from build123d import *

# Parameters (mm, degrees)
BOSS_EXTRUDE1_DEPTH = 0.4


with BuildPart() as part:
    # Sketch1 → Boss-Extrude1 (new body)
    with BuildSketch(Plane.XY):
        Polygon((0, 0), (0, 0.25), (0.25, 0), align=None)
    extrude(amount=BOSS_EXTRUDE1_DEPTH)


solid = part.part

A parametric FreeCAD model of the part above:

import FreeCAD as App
import Part
import Sketcher

V = App.Vector
Q = App.Units.Quantity

doc = App.newDocument("Part")
body = doc.addObject("PartDesign::Body", "Body")

sketch1 = body.newObject("Sketcher::SketchObject", "Sketch")
sketch1.AttachmentSupport = (doc.getObject("XY_Plane"), [""])
sketch1.MapMode = "FlatFace"
sketch1.addGeometry(Part.LineSegment(V(0, 0.25, 0), V(0, 0, 0)), False)
sketch1.addGeometry(Part.LineSegment(V(0, 0, 0), V(0.25, 0, 0)), False)
sketch1.addGeometry(Part.LineSegment(V(0.25, 0, 0), V(0, 0.25, 0)), False)
sketch1.addConstraint(Sketcher.Constraint("Coincident", 0, 2, 1, 1))
sketch1.addConstraint(Sketcher.Constraint("Coincident", 1, 2, 2, 1))
sketch1.addConstraint(Sketcher.Constraint("Coincident", 2, 2, 0, 1))
sketch1.addConstraint(Sketcher.Constraint("Vertical", 0))
sketch1.addConstraint(Sketcher.Constraint("Horizontal", 1))
sketch1.addConstraint(Sketcher.Constraint("Coincident", 0, 2, -1, 1))
sketch1.addConstraint(Sketcher.Constraint("Equal", 1, 0))
sketch1.addConstraint(Sketcher.Constraint("DistanceX", 1, 1, 1, 2, Q("0.25 mm")))
pad1 = body.newObject("PartDesign::Pad", "Pad")
pad1.Profile = sketch1
pad1.Length = 0.4

doc.recompute()
